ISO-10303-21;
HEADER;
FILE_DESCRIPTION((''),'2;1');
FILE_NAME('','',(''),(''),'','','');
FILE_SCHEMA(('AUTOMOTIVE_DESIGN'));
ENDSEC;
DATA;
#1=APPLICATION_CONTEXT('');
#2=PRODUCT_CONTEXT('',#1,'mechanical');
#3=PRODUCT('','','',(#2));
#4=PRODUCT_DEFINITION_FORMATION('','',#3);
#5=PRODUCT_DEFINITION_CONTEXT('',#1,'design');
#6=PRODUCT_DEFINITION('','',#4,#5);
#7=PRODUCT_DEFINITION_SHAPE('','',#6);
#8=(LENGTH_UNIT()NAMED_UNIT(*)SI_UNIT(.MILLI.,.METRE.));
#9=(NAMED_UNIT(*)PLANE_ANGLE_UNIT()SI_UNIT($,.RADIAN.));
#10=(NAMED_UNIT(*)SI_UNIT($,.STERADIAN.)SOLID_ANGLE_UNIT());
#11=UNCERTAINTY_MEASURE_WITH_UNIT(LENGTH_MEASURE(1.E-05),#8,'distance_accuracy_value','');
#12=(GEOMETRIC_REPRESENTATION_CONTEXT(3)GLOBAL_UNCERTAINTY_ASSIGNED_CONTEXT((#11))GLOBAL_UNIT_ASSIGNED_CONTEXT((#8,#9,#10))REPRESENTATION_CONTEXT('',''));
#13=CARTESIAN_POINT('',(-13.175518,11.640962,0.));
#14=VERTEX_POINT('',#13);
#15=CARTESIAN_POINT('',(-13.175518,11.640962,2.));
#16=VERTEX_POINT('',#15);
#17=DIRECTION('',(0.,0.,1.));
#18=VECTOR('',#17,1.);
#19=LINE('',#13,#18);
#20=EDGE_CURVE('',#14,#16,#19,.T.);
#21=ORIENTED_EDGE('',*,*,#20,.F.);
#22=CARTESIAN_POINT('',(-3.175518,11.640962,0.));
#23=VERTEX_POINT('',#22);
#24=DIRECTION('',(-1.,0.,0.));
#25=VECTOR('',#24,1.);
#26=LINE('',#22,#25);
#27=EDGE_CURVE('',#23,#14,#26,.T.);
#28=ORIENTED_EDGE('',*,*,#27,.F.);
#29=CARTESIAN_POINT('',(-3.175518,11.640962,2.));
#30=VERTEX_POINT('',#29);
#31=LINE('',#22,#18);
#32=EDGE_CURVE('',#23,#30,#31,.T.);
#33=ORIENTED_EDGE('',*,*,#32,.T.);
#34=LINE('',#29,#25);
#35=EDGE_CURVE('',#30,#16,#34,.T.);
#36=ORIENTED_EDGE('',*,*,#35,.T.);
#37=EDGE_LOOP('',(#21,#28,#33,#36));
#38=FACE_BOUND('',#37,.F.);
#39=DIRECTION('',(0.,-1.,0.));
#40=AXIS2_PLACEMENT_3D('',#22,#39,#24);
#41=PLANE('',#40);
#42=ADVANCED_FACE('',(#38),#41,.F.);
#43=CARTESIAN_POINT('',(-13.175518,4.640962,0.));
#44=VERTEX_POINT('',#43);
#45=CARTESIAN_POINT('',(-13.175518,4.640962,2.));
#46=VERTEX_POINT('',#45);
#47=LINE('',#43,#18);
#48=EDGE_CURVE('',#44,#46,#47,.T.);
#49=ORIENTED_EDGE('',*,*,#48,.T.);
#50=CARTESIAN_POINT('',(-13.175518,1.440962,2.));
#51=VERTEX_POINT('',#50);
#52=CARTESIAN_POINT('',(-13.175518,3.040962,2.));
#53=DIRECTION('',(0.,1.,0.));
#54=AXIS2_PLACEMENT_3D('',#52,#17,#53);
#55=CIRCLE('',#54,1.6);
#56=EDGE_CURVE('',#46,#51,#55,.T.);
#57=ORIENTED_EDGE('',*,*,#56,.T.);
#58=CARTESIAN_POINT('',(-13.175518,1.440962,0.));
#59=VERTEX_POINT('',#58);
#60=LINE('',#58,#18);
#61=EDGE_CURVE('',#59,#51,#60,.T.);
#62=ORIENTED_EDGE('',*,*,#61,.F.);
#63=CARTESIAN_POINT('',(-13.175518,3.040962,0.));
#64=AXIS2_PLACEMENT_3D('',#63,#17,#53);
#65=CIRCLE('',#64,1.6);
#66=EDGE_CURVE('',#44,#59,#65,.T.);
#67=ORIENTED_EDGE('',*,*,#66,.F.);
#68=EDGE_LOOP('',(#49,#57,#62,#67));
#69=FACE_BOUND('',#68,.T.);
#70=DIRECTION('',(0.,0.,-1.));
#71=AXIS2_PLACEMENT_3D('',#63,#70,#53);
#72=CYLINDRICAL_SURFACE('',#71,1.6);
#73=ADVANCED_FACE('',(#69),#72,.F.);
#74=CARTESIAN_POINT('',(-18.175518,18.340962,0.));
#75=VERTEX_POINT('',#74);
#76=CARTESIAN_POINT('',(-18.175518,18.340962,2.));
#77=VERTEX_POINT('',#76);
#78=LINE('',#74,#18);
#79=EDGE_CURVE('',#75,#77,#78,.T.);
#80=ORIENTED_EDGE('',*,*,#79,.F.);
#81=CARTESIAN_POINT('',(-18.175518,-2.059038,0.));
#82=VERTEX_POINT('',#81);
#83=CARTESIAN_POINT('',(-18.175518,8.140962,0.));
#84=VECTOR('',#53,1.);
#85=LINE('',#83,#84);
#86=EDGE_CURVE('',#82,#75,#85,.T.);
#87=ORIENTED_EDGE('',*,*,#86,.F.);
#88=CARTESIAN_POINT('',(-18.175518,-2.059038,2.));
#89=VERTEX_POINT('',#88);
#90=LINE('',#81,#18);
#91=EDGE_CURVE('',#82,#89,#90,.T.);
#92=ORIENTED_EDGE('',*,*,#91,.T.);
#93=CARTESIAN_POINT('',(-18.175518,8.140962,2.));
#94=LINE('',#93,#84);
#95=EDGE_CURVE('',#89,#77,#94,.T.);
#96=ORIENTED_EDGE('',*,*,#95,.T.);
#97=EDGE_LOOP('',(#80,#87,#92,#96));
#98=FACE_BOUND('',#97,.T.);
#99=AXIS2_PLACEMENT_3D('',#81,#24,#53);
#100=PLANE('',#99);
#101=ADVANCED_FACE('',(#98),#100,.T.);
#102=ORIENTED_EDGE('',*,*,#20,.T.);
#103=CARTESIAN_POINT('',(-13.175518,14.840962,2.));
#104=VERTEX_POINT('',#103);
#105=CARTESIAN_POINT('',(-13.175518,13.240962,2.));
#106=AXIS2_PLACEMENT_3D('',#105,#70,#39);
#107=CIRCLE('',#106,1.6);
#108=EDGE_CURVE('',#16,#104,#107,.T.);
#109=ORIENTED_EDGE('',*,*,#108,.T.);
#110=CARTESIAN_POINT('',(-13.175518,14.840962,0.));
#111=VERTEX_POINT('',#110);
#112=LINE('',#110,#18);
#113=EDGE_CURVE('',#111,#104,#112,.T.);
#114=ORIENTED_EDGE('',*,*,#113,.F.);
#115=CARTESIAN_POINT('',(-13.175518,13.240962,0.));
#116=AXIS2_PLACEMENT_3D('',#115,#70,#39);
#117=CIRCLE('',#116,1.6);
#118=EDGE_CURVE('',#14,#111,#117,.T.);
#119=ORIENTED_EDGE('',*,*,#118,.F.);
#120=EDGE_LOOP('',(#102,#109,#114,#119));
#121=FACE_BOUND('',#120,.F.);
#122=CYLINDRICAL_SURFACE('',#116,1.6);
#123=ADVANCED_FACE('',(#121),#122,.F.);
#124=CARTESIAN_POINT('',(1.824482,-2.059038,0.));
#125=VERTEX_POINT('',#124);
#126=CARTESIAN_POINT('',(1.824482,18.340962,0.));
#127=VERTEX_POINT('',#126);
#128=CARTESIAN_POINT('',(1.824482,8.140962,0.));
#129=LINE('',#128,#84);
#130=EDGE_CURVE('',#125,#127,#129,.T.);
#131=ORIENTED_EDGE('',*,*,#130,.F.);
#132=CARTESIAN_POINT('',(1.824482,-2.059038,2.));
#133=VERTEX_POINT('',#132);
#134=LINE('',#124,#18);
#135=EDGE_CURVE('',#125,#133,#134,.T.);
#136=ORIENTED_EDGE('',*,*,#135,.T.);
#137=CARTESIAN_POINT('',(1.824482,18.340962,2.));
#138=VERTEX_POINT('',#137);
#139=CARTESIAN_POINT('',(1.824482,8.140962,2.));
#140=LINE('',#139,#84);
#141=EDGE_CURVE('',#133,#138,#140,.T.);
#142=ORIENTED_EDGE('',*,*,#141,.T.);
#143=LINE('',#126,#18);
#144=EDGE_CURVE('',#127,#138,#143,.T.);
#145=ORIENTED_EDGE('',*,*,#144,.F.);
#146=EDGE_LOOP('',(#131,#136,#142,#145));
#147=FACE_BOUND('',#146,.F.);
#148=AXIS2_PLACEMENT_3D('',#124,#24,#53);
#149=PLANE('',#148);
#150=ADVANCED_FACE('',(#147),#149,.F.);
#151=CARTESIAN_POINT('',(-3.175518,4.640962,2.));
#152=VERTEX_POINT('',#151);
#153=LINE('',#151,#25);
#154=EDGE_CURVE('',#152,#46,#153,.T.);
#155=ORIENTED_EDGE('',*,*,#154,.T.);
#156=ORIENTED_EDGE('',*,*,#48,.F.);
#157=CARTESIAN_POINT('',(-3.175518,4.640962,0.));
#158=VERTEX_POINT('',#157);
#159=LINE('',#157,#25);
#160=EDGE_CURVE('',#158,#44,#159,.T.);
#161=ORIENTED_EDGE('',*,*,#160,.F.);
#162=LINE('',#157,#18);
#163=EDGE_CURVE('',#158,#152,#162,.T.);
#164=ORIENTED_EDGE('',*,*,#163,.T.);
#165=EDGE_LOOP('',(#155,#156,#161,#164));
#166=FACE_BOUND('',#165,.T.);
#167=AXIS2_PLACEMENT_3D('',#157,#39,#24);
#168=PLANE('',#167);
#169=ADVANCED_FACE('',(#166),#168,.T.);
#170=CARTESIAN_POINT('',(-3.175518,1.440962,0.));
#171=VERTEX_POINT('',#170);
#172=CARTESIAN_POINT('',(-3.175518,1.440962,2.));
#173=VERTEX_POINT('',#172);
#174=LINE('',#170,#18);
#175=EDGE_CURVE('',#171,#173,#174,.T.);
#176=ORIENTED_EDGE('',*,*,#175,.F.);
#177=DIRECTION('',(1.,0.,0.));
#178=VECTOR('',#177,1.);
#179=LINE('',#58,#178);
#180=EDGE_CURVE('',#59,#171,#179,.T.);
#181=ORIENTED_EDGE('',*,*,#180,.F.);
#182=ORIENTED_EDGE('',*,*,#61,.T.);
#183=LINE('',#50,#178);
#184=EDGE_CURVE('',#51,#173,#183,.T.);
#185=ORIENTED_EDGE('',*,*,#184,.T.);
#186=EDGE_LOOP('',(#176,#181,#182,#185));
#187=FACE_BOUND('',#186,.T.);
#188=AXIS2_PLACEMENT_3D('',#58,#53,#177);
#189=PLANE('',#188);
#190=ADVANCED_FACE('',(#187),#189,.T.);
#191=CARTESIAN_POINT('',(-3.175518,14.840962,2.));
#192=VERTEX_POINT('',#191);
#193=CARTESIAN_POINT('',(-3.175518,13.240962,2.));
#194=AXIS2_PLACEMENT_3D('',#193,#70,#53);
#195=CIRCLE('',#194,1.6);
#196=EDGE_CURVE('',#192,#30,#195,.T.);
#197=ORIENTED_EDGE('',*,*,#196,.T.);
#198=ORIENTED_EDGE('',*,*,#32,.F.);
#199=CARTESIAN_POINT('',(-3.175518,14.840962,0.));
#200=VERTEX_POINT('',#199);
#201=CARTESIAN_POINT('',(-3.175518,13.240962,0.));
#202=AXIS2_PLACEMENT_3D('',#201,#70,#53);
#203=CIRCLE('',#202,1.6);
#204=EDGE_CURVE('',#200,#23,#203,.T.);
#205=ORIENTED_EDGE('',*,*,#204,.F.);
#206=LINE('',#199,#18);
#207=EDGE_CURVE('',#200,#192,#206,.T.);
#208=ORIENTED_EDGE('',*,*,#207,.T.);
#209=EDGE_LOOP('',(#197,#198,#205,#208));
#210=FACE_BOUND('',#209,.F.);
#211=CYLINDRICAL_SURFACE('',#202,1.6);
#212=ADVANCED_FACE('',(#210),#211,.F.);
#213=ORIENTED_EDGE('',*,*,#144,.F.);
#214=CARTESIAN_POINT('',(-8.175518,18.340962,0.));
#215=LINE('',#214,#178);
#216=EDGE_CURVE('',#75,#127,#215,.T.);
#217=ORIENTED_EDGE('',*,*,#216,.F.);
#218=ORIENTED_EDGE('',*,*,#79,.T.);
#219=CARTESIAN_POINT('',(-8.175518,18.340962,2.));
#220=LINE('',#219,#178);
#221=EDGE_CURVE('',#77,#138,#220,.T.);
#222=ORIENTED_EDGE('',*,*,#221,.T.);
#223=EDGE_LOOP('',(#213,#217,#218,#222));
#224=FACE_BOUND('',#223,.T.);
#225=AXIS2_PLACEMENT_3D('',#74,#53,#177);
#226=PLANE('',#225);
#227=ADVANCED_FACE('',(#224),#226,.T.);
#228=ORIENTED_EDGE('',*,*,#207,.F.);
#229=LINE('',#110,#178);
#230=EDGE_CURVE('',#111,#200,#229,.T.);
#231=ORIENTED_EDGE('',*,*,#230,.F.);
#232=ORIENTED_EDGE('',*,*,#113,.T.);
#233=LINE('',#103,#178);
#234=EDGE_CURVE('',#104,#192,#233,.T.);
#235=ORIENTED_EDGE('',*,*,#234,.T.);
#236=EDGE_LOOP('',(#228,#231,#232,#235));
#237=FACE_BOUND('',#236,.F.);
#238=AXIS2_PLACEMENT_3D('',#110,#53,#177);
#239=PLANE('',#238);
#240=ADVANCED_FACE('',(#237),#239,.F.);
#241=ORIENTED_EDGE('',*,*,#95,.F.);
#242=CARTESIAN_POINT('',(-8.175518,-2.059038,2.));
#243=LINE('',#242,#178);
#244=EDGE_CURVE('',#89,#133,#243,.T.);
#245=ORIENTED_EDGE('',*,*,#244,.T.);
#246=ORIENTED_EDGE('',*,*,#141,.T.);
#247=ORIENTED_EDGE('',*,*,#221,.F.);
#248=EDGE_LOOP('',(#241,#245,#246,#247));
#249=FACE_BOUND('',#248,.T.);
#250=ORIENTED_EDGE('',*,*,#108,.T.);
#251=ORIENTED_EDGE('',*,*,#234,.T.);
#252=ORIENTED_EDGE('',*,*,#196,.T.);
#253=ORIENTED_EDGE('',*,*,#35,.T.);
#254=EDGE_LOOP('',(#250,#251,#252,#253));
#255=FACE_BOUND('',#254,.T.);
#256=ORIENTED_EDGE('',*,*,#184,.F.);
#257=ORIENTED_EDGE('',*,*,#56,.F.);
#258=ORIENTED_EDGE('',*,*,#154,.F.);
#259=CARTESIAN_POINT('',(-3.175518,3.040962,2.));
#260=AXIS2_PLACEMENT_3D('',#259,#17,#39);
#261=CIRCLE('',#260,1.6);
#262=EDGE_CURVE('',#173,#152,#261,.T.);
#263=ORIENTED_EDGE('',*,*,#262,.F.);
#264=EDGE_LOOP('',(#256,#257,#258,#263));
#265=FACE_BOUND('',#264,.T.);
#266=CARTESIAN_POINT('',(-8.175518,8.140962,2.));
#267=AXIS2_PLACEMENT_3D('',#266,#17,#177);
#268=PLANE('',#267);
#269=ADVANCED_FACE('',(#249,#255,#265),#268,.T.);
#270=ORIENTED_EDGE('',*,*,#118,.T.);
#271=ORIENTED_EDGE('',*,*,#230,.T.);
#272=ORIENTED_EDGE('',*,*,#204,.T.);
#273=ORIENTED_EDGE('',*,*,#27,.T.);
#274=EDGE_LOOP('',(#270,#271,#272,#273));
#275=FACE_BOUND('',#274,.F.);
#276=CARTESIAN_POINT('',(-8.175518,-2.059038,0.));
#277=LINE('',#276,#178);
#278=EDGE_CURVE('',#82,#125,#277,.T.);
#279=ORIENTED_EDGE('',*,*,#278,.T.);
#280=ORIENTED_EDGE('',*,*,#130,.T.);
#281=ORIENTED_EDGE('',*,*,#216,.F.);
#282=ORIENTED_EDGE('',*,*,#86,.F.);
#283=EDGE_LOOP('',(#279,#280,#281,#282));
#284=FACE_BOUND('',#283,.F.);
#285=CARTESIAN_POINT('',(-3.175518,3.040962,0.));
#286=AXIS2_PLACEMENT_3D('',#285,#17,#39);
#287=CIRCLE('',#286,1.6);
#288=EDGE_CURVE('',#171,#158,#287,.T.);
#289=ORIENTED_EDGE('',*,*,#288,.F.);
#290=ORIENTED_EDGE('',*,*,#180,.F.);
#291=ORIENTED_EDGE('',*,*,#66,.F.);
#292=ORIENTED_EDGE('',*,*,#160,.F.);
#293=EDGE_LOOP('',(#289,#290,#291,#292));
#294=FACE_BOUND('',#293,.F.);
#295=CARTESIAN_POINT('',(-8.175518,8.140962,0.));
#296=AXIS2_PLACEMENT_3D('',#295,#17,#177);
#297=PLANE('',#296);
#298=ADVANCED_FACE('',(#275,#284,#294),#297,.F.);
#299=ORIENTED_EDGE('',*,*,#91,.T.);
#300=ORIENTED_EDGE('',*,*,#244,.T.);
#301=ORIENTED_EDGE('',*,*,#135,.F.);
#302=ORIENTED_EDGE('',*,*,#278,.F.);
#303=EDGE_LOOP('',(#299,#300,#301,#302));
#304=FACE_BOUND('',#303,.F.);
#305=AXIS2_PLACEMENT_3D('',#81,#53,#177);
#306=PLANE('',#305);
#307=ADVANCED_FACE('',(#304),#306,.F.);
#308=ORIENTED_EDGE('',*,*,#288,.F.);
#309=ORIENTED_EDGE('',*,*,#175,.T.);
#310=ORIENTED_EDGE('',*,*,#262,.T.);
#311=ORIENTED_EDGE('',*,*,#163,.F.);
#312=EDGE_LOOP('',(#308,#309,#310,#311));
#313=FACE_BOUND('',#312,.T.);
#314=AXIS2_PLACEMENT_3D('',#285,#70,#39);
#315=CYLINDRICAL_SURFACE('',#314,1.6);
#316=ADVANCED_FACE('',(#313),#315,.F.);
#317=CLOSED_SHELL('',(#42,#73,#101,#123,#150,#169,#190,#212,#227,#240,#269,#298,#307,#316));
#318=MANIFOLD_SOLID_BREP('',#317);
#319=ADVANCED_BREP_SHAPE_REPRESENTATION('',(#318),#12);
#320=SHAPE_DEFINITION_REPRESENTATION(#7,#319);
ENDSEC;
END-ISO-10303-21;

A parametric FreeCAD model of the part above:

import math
import FreeCAD as App
import Part
import Sketcher


def add_polygon(sketch, points):
    """Adds a closed chain of lines whose ends are joined by coincident constraints."""
    first, n = sketch.GeometryCount, len(points)
    for a, b in zip(points, points[1:] + points[:1]):
        sketch.addGeometry(Part.LineSegment(App.Vector(*a, 0), App.Vector(*b, 0)), False)
    for i in range(n):
        sketch.addConstraint(Sketcher.Constraint("Coincident", first + i, 2, first + (i + 1) % n, 1))

doc = App.newDocument("Part")
body = doc.addObject("PartDesign::Body", "Body")

# Sketch on XY plane
sketch1 = doc.addObject("Sketcher::SketchObject", "Sketch")
body.addObject(sketch1)
sketch1.AttachmentSupport = (doc.XY_Plane, [""])
sketch1.MapMode = "FlatFace"
add_polygon(sketch1, [(-18.2, 18.3), (-18.2, -2.1), (1.8, -2.1), (1.8, 18.3)])  # lines 0-3
sketch1.addGeometry(Part.LineSegment(App.Vector(-3.2, 1.4, 0), App.Vector(-13.2, 1.4, 0)), False)  # 4
sketch1.addGeometry(Part.ArcOfCircle(Part.Circle(App.Vector(-13.2, 3, 0), App.Vector(0, 0, 1), 1.6), math.radians(90), math.radians(270)), False)  # 5
sketch1.addGeometry(Part.LineSegment(App.Vector(-13.2, 4.6, 0), App.Vector(-3.2, 4.6, 0)), False)  # 6
sketch1.addGeometry(Part.ArcOfCircle(Part.Circle(App.Vector(-3.2, 3, 0), App.Vector(0, 0, 1), 1.6), math.radians(-90), math.radians(90)), False)  # 7
sketch1.addGeometry(Part.ArcOfCircle(Part.Circle(App.Vector(-13.2, 13.2, 0), App.Vector(0, 0, 1), 1.6), math.radians(90), math.radians(270)), False)  # 8
sketch1.addGeometry(Part.LineSegment(App.Vector(-13.2, 14.8, 0), App.Vector(-3.2, 14.8, 0)), False)  # 9
sketch1.addGeometry(Part.ArcOfCircle(Part.Circle(App.Vector(-3.2, 13.2, 0), App.Vector(0, 0, 1), 1.6), math.radians(-90), math.radians(90)), False)  # 10
sketch1.addGeometry(Part.LineSegment(App.Vector(-3.2, 11.6, 0), App.Vector(-13.2, 11.6, 0)), False)  # 11
sketch1.addConstraint([
    Sketcher.Constraint("Tangent", 4, 2, 5, 2),
    Sketcher.Constraint("Tangent", 5, 1, 6, 1),
    Sketcher.Constraint("Tangent", 6, 2, 7, 2),
    Sketcher.Constraint("Tangent", 7, 1, 4, 1),
    Sketcher.Constraint("Tangent", 8, 1, 9, 1),
    Sketcher.Constraint("Tangent", 9, 2, 10, 2),
    Sketcher.Constraint("Tangent", 10, 1, 11, 1),
    Sketcher.Constraint("Tangent", 11, 2, 8, 2),
    Sketcher.Constraint("Vertical", 0),
    Sketcher.Constraint("Horizontal", 1),
    Sketcher.Constraint("Vertical", 2),
    Sketcher.Constraint("Horizontal", 3),
    Sketcher.Constraint("Horizontal", 4),
    Sketcher.Constraint("Horizontal", 6),
    Sketcher.Constraint("Horizontal", 9),
    Sketcher.Constraint("Horizontal", 11),
    Sketcher.Constraint("Equal", 7, 8),
    Sketcher.Constraint("Vertical", 5, 3, 8, 3),
    Sketcher.Constraint("Vertical", 7, 3, 10, 3),
    Sketcher.Constraint("Radius", 5, 1.6),
    Sketcher.Constraint("DistanceX", 1, 1, 1, 2, 20.0),
    Sketcher.Constraint("DistanceX", 4, 2, 4, 1, 10.0),
    Sketcher.Constraint("DistanceY", 0, 2, 0, 1, 20.4),
    Sketcher.Constraint("DistanceX", 0, 2, 5, 3, 5.0),
    Sketcher.Constraint("DistanceY", 6, 2, 10, 1, 7.0),
    Sketcher.Constraint("DistanceY", 0, 2, 5, 3, 5.1),
    Sketcher.Constraint("DistanceX", 5, 3, -1, 1, 13.175518),
    Sketcher.Constraint("DistanceY", -1, 1, 5, 3, 3.040962),
])
pad1 = doc.addObject("PartDesign::Pad", "Pad")
body.addObject(pad1)
pad1.Profile = sketch1
pad1.Length = 2

doc.recompute()
